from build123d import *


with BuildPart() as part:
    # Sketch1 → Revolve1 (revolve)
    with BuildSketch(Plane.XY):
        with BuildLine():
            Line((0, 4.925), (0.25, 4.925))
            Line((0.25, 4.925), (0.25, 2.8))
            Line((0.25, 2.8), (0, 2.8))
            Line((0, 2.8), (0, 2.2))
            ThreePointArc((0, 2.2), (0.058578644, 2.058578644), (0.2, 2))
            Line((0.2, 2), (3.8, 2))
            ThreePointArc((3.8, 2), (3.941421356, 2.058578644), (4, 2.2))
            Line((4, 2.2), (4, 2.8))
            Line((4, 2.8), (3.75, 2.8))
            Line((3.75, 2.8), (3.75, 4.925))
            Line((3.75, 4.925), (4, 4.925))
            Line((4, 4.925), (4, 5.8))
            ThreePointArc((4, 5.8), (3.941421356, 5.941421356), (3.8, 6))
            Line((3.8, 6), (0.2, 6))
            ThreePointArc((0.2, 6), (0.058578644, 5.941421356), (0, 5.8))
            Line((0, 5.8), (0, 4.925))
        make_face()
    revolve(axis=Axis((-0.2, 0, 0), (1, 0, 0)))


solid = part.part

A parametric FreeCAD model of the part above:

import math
import FreeCAD as App
import Part
import Sketcher
from FreeCAD import Vector

doc = App.newDocument("Part")
body = doc.addObject("PartDesign::Body", "Body")

# Sketch on XY plane
sketch1 = doc.addObject("Sketcher::SketchObject", "Sketch")
body.addObject(sketch1)
sketch1.AttachmentSupport = (doc.XY_Plane, [""])
sketch1.MapMode = "FlatFace"
sketch1.addGeometry([
    Part.LineSegment(Vector(0, 4.925, 0), Vector(0.25, 4.925, 0)),  # 0
    Part.LineSegment(Vector(0.25, 4.925, 0), Vector(0.25, 2.8, 0)),  # 1
    Part.LineSegment(Vector(0.25, 2.8, 0), Vector(0, 2.8, 0)),  # 2
    Part.LineSegment(Vector(0, 2.8, 0), Vector(0, 2.2, 0)),  # 3
    Part.ArcOfCircle(Part.Circle(Vector(0.2, 2.2, 0), Vector(0, 0, 1), 0.2), math.radians(-180), math.radians(-90)),  # 4
    Part.LineSegment(Vector(0.2, 2, 0), Vector(3.8, 2, 0)),  # 5
    Part.ArcOfCircle(Part.Circle(Vector(3.8, 2.2, 0), Vector(0, 0, 1), 0.2), math.radians(-90), math.radians(0)),  # 6
    Part.LineSegment(Vector(4, 2.2, 0), Vector(4, 2.8, 0)),  # 7
    Part.LineSegment(Vector(4, 2.8, 0), Vector(3.75, 2.8, 0)),  # 8
    Part.LineSegment(Vector(3.75, 2.8, 0), Vector(3.75, 4.925, 0)),  # 9
    Part.LineSegment(Vector(3.75, 4.925, 0), Vector(4, 4.925, 0)),  # 10
    Part.LineSegment(Vector(4, 4.925, 0), Vector(4, 5.8, 0)),  # 11
    Part.ArcOfCircle(Part.Circle(Vector(3.8, 5.8, 0), Vector(0, 0, 1), 0.2), math.radians(0), math.radians(90)),  # 12
    Part.LineSegment(Vector(3.8, 6, 0), Vector(0.2, 6, 0)),  # 13
    Part.ArcOfCircle(Part.Circle(Vector(0.2, 5.8, 0), Vector(0, 0, 1), 0.2), math.radians(90), math.radians(180)),  # 14
    Part.LineSegment(Vector(0, 5.8, 0), Vector(0, 4.925, 0)),  # 15
], False)
sketch1.addConstraint([
    Sketcher.Constraint("Coincident", 0, 2, 1, 1),
    Sketcher.Constraint("Coincident", 1, 2, 2, 1),
    Sketcher.Constraint("Coincident", 2, 2, 3, 1),
    Sketcher.Constraint("Tangent", 3, 2, 4, 1),
    Sketcher.Constraint("Tangent", 4, 2, 5, 1),
    Sketcher.Constraint("Tangent", 5, 2, 6, 1),
    Sketcher.Constraint("Tangent", 6, 2, 7, 1),
    Sketcher.Constraint("Coincident", 7, 2, 8, 1),
    Sketcher.Constraint("Coincident", 8, 2, 9, 1),
    Sketcher.Constraint("Coincident", 9, 2, 10, 1),
    Sketcher.Constraint("Coincident", 10, 2, 11, 1),
    Sketcher.Constraint("Tangent", 11, 2, 12, 1),
    Sketcher.Constraint("Tangent", 12, 2, 13, 1),
    Sketcher.Constraint("Tangent", 13, 2, 14, 1),
    Sketcher.Constraint("Tangent", 14, 2, 15, 1),
    Sketcher.Constraint("Coincident", 15, 2, 0, 1),
    Sketcher.Constraint("Horizontal", 0),
    Sketcher.Constraint("Vertical", 1),
    Sketcher.Constraint("Horizontal", 2),
    Sketcher.Constraint("Vertical", 3),
    Sketcher.Constraint("Horizontal", 5),
    Sketcher.Constraint("Vertical", 7),
    Sketcher.Constraint("Horizontal", 8),
    Sketcher.Constraint("Vertical", 9),
    Sketcher.Constraint("Horizontal", 10),
    Sketcher.Constraint("Vertical", 11),
    Sketcher.Constraint("Horizontal", 13),
    Sketcher.Constraint("Vertical", 15),
    Sketcher.Constraint("Equal", 4, 6),
    Sketcher.Constraint("Equal", 6, 12),
    Sketcher.Constraint("Equal", 12, 14),
    Sketcher.Constraint("PointOnObject", 2, 2, -2),
    Sketcher.Constraint("PointOnObject", 14, 2, -2),
    Sketcher.Constraint("Horizontal", 2, 2, 7, 2),
    Sketcher.Constraint("Horizontal", 0, 2, 9, 2),
    Sketcher.Constraint("Vertical", 6, 3, 12, 3),
    Sketcher.Constraint("Equal", 2, 8),
    Sketcher.Constraint("Radius", 4, 0.2),
    Sketcher.Constraint("DistanceX", 5, 1, 5, 2, 3.6),
    Sketcher.Constraint("DistanceY", 3, 2, 3, 1, 0.6),
    Sketcher.Constraint("DistanceY", -1, 1, 4, 2, 2.0),
    Sketcher.Constraint("DistanceY", -1, 1, 12, 2, 6.0),
    Sketcher.Constraint("DistanceX", 0, 1, 0, 2, 0.25),
    Sketcher.Constraint("DistanceY", 1, 2, 1, 1, 2.125),
])
revolution = doc.addObject("PartDesign::Revolution", "Revolution")
body.addObject(revolution)
revolution.Profile = sketch1
revolution.ReferenceAxis = (sketch1, ["H_Axis"])
revolution.Angle = 360

doc.recompute()
